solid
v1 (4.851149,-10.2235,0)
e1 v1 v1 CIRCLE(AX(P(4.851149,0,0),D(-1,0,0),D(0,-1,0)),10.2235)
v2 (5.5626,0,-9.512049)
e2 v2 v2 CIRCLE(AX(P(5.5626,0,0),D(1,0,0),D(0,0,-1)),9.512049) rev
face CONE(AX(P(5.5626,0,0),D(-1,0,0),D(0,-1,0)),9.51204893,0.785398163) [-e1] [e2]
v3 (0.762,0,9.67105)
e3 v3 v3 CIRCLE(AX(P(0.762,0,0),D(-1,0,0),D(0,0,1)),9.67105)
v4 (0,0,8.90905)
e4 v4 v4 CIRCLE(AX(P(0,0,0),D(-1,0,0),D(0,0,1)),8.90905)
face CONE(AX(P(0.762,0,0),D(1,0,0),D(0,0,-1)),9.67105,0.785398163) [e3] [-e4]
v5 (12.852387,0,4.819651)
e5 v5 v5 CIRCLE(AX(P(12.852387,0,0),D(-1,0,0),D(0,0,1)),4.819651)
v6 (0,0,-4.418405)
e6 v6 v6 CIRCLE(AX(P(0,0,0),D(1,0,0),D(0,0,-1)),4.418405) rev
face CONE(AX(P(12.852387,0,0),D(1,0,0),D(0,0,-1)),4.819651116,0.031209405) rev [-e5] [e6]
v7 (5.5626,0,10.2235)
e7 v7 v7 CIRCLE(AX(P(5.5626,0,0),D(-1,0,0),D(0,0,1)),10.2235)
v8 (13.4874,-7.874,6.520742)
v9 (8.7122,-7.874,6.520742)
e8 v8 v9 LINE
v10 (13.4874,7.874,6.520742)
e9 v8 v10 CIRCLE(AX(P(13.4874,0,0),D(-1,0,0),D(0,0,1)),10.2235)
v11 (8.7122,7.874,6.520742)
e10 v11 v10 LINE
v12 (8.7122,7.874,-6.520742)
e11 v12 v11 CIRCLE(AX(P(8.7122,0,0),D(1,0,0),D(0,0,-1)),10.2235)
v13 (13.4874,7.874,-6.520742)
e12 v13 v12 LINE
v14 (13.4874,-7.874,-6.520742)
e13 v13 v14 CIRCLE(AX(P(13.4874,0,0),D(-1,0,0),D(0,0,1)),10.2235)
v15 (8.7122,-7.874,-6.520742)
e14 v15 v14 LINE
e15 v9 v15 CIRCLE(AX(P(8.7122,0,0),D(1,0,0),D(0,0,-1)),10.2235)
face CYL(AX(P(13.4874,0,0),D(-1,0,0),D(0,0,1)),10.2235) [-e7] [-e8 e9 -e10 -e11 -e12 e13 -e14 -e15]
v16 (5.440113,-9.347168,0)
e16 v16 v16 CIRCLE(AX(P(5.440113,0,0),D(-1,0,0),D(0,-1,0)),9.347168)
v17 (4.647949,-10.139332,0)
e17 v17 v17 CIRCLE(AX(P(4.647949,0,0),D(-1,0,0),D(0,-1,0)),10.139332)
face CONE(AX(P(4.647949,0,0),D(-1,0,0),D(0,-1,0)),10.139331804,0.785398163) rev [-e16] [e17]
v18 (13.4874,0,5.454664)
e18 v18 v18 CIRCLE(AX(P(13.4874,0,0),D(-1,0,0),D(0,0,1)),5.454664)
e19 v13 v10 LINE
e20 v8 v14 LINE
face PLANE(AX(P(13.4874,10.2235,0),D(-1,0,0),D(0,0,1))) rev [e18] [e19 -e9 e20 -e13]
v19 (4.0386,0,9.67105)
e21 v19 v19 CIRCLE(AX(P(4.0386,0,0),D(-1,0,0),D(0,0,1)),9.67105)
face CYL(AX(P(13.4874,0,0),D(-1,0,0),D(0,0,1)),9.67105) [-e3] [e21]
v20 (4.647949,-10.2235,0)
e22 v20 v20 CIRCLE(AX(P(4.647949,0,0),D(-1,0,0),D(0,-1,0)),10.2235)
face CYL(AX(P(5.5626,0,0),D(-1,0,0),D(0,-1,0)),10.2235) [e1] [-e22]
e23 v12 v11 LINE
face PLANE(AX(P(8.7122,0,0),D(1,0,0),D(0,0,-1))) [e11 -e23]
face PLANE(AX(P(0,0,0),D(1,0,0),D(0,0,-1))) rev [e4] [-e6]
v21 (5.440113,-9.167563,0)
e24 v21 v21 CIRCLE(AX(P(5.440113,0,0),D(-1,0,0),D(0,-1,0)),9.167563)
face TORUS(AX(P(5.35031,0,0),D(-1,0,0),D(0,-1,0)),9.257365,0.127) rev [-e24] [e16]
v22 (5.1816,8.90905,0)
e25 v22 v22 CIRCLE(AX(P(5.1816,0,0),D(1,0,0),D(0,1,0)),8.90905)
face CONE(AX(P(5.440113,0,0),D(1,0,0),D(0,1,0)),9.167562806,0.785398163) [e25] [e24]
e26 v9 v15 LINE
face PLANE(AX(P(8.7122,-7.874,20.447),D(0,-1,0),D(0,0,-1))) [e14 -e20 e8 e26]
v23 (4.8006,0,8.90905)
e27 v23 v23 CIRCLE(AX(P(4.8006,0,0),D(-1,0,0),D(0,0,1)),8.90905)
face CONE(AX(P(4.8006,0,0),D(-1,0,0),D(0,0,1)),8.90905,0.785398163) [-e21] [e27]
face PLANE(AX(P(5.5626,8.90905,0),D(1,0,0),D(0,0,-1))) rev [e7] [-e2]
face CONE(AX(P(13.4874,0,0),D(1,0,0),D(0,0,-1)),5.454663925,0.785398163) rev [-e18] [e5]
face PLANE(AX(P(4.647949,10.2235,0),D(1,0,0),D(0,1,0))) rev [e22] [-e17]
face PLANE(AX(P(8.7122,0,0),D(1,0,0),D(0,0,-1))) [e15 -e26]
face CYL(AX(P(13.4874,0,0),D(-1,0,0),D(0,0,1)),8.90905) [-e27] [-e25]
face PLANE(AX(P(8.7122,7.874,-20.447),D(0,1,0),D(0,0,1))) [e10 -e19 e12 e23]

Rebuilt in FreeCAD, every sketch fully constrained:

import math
import FreeCAD as App
import Part
import Sketcher

V = App.Vector
Q = App.Units.Quantity


def add_polygon(sketch, points):
    """Adds a closed chain of lines whose ends are joined by coincident constraints."""
    first, n = sketch.GeometryCount, len(points)
    for a, b in zip(points, points[1:] + points[:1]):
        sketch.addGeometry(Part.LineSegment(App.Vector(*a, 0), App.Vector(*b, 0)), False)
    for i in range(n):
        sketch.addConstraint(Sketcher.Constraint("Coincident", first + i, 2, first + (i + 1) % n, 1))

doc = App.newDocument("Part")
body = doc.addObject("PartDesign::Body", "Body")

# Sketch on XY plane
sketch1 = body.newObject("Sketcher::SketchObject", "Sketch")
sketch1.AttachmentSupport = (doc.getObject("XY_Plane"), [""])
sketch1.MapMode = "FlatFace"
add_polygon(sketch1, [(0, 8.9), (0, 0), (13.5, 0), (13.5, 10.2), (5.6, 10.2), (5.6, 8.9), (4.8, 8.9), (4, 9.7), (0.8, 9.7)])  # lines 0-8
sketch1.addConstraint(Sketcher.Constraint("Vertical", 0))
sketch1.addConstraint(Sketcher.Constraint("Horizontal", 1))
sketch1.addConstraint(Sketcher.Constraint("Vertical", 2))
sketch1.addConstraint(Sketcher.Constraint("Horizontal", 3))
sketch1.addConstraint(Sketcher.Constraint("Vertical", 4))
sketch1.addConstraint(Sketcher.Constraint("Horizontal", 5))
sketch1.addConstraint(Sketcher.Constraint("Horizontal", 7))
sketch1.addConstraint(Sketcher.Constraint("Coincident", 0, 2, -1, 1))
sketch1.addConstraint(Sketcher.Constraint("Perpendicular", 6, 8))
sketch1.addConstraint(Sketcher.Constraint("Horizontal", 5, 2, 8, 2))
sketch1.addConstraint(Sketcher.Constraint("Equal", 6, 8))
sketch1.addConstraint(Sketcher.Constraint("DistanceX", 5, 2, 5, 1, Q("0.03 in")))
sketch1.addConstraint(Sketcher.Constraint("DistanceX", 1, 1, 1, 2, Q("0.531 in")))
sketch1.addConstraint(Sketcher.Constraint("DistanceX", 3, 2, 3, 1, Q("0.312 in")))
sketch1.addConstraint(Sketcher.Constraint("DistanceX", 7, 2, 7, 1, Q("0.129 in")))
sketch1.addConstraint(Sketcher.Constraint("DistanceY", 2, 1, 2, 2, Q("0.4025 in")))
sketch1.addConstraint(Sketcher.Constraint("DistanceY", 0, 2, 0, 1, Q("8.90905 mm")))
revolution = body.newObject("PartDesign::Revolution", "Revolution")
revolution.Profile = sketch1
revolution.ReferenceAxis = (sketch1, ["H_Axis"])
revolution.Angle = 360

# Sketch on XY plane
sketch2 = body.newObject("Sketcher::SketchObject", "Sketch001")
sketch2.AttachmentSupport = (doc.getObject("XY_Plane"), [""])
sketch2.MapMode = "FlatFace"
add_polygon(sketch2, [(0, 4.4), (0, 0), (13.5, 0), (13.5, 5.5), (12.9, 4.8), (-1.6, 4.4)])  # lines 0-5
sketch2.addConstraint(Sketcher.Constraint("Vertical", 0))
sketch2.addConstraint(Sketcher.Constraint("Horizontal", 1))
sketch2.addConstraint(Sketcher.Constraint("Vertical", 2))
sketch2.addConstraint(Sketcher.Constraint("Horizontal", 5))
sketch2.addConstraint(Sketcher.Constraint("Coincident", 0, 2, -1, 1))
sketch2.addConstraint(Sketcher.Constraint("Angle", 3, Q("-135 deg")))
sketch2.addConstraint(Sketcher.Constraint("DistanceX", 1, 1, 1, 2, Q("0.531 in")))
sketch2.addConstraint(Sketcher.Constraint("DistanceY", 0, 2, 0, 1, Q("0.172 in")))
sketch2.addConstraint(Sketcher.Constraint("DistanceX", 5, 1, 5, 2, Q("1.588924 mm")))
sketch2.addConstraint(Sketcher.Constraint("DistanceY", 2, 1, 2, 2, Q("5.454664 mm")))
sketch2.addConstraint(Sketcher.Constraint("DistanceY", -1, 1, 3, 2, Q("4.819651 mm")))
groove = body.newObject("PartDesign::Groove", "Groove")
groove.Profile = sketch2
groove.ReferenceAxis = (sketch2, ["H_Axis"])
groove.Angle = 360

# Sketch on YZ plane
sketch3 = body.newObject("Sketcher::SketchObject", "Sketch002")
sketch3.AttachmentSupport = (doc.getObject("YZ_Plane"), [""])
sketch3.MapMode = "FlatFace"
sketch3.AttachmentOffset = App.Placement(V(0, 0, 0.531 * 25.4), App.Rotation())
add_polygon(sketch3, [(20, 41), (-20, 41), (-20, -41), (20, -41)])  # lines 0-3
add_polygon(sketch3, [(-8, -20), (-8, 20), (8, 20), (8, -20)])  # lines 4-7
sketch3.addConstraint(Sketcher.Constraint("Horizontal", 0))
sketch3.addConstraint(Sketcher.Constraint("Vertical", 1))
sketch3.addConstraint(Sketcher.Constraint("Horizontal", 2))
sketch3.addConstraint(Sketcher.Constraint("Vertical", 3))
sketch3.addConstraint(Sketcher.Constraint("Vertical", 4))
sketch3.addConstraint(Sketcher.Constraint("Horizontal", 5))
sketch3.addConstraint(Sketcher.Constraint("Vertical", 6))
sketch3.addConstraint(Sketcher.Constraint("Horizontal", 7))
sketch3.addConstraint(Sketcher.Constraint("Symmetric", 0, 2, 2, 2, -1, 1))
sketch3.addConstraint(Sketcher.Constraint("Symmetric", 4, 2, 6, 2, -1, 1))
sketch3.addConstraint(Sketcher.Constraint("Equal", 2, 4))
sketch3.addConstraint(Sketcher.Constraint("DistanceX", 0, 2, 0, 1, Q("1.61 in")))
sketch3.addConstraint(Sketcher.Constraint("DistanceX", 5, 1, 5, 2, Q("0.62 in")))
sketch3.addConstraint(Sketcher.Constraint("DistanceY", 1, 2, 1, 1, Q("3.22 in")))
pocket1 = body.newObject("PartDesign::Pocket", "Pocket")
pocket1.Profile = sketch3
pocket1.Length = Q("0.188 in")

# Sketch on XY plane
sketch4 = body.newObject("Sketcher::SketchObject", "Sketch003")
sketch4.AttachmentSupport = (doc.getObject("XY_Plane"), [""])
sketch4.MapMode = "FlatFace"
sketch4.addGeometry(Part.LineSegment(V(4.65, 10.14, 0), V(5.44, 9.35, 0)), False)
sketch4.addGeometry(Part.ArcOfCircle(Part.Circle(V(5.35, 9.26, 0), V(0, 0, 1), 0.13), math.radians(-45), math.radians(45)), False)
sketch4.addGeometry(Part.LineSegment(V(5.44, 9.17, 0), V(5.18, 8.91, 0)), False)
sketch4.addGeometry(Part.LineSegment(V(5.18, 8.91, 0), V(4.8, 8.91, 0)), False)
sketch4.addGeometry(Part.LineSegment(V(4.8, 8.91, 0), V(4.8, 8.66, 0)), False)
sketch4.addGeometry(Part.LineSegment(V(4.8, 8.66, 0), V(5.56, 8.66, 0)), False)
sketch4.addGeometry(Part.LineSegment(V(5.56, 8.66, 0), V(5.56, 9.51, 0)), False)
sketch4.addGeometry(Part.LineSegment(V(5.56, 9.51, 0), V(4.85, 10.22, 0)), False)
sketch4.addGeometry(Part.LineSegment(V(4.85, 10.22, 0), V(4.65, 10.22, 0)), False)
sketch4.addGeometry(Part.LineSegment(V(4.65, 10.22, 0), V(4.65, 10.14, 0)), False)
sketch4.addConstraint(Sketcher.Constraint("Tangent", 0, 2, 1, 2))
sketch4.addConstraint(Sketcher.Constraint("Tangent", 1, 1, 2, 1))
sketch4.addConstraint(Sketcher.Constraint("Coincident", 2, 2, 3, 1))
sketch4.addConstraint(Sketcher.Constraint("Coincident", 3, 2, 4, 1))
sketch4.addConstraint(Sketcher.Constraint("Coincident", 4, 2, 5, 1))
sketch4.addConstraint(Sketcher.Constraint("Coincident", 5, 2, 6, 1))
sketch4.addConstraint(Sketcher.Constraint("Coincident", 6, 2, 7, 1))
sketch4.addConstraint(Sketcher.Constraint("Coincident", 7, 2, 8, 1))
sketch4.addConstraint(Sketcher.Constraint("Coincident", 8, 2, 9, 1))
sketch4.addConstraint(Sketcher.Constraint("Coincident", 9, 2, 0, 1))
sketch4.addConstraint(Sketcher.Constraint("Horizontal", 3))
sketch4.addConstraint(Sketcher.Constraint("Vertical", 4))
sketch4.addConstraint(Sketcher.Constraint("Horizontal", 5))
sketch4.addConstraint(Sketcher.Constraint("Vertical", 6))
sketch4.addConstraint(Sketcher.Constraint("Horizontal", 8))
sketch4.addConstraint(Sketcher.Constraint("Vertical", 9))
sketch4.addConstraint(Sketcher.Constraint("Perpendicular", 0, 2))
sketch4.addConstraint(Sketcher.Constraint("Perpendicular", 2, 7))
sketch4.addConstraint(Sketcher.Constraint("Vertical", 0, 2, 1, 1))
sketch4.addConstraint(Sketcher.Constraint("Radius", 1, Q("0.005 in")))
sketch4.addConstraint(Sketcher.Constraint("DistanceX", 5, 1, 5, 2, Q("0.03 in")))
sketch4.addConstraint(Sketcher.Constraint("DistanceY", 4, 2, 4, 1, Q("0.01 in")))
sketch4.addConstraint(Sketcher.Constraint("DistanceX", 3, 2, 3, 1, Q("0.015 in")))
sketch4.addConstraint(Sketcher.Constraint("DistanceX", 8, 2, 8, 1, Q("0.008 in")))
sketch4.addConstraint(Sketcher.Constraint("DistanceX", -1, 1, 2, 2, Q("0.204 in")))
sketch4.addConstraint(Sketcher.Constraint("DistanceY", 6, 1, 6, 2, Q("0.856999 mm")))
sketch4.addConstraint(Sketcher.Constraint("DistanceY", -1, 1, 7, 2, Q("0.4025 in")))
sketch4.addConstraint(Sketcher.Constraint("DistanceY", 9, 2, 9, 1, Q("0.084168 mm")))
sketch4.addConstraint(Sketcher.Constraint("Distance", 0, Q("1.120289 mm")))
revolution2 = body.newObject("PartDesign::Revolution", "Revolution001")
revolution2.Profile = sketch4
revolution2.ReferenceAxis = (sketch4, ["H_Axis"])
revolution2.Angle = 360

doc.recompute()
